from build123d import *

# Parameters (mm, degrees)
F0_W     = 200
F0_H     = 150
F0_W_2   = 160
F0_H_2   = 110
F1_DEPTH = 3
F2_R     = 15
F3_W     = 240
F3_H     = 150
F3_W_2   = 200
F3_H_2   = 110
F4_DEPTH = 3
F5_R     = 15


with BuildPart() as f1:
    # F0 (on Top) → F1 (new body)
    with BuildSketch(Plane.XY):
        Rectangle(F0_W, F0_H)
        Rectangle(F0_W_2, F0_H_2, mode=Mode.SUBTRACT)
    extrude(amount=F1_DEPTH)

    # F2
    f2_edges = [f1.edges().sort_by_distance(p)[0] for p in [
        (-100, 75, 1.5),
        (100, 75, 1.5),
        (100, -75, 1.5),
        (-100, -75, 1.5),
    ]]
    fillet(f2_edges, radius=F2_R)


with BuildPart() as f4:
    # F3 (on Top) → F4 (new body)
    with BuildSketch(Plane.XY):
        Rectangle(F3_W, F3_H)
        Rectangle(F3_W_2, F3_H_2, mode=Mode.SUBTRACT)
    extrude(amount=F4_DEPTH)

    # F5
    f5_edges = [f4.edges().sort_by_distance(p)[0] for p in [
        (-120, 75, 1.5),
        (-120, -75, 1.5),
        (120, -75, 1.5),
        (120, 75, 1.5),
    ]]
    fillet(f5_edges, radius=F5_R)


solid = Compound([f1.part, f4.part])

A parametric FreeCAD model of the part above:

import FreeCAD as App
import Part
import Sketcher
Q = App.Units.Quantity


def edges_at(feature, points):
    """Names of the edges that pass closest to the given points."""
    edges = feature.Shape.Edges
    near = lambda p: min(range(len(edges)), key=lambda i: edges[i].distToShape(Part.Vertex(*p))[0])
    return sorted({f"Edge{near(p) + 1}" for p in points})


def add_polygon(sketch, points):
    """Adds a closed chain of lines whose ends are joined by coincident constraints."""
    first, n = sketch.GeometryCount, len(points)
    for a, b in zip(points, points[1:] + points[:1]):
        sketch.addGeometry(Part.LineSegment(App.Vector(*a, 0), App.Vector(*b, 0)), False)
    for i in range(n):
        sketch.addConstraint(Sketcher.Constraint("Coincident", first + i, 2, first + (i + 1) % n, 1))

doc = App.newDocument("Part")
body = doc.addObject("PartDesign::Body", "Body")

# Sketch on XY plane
sketch1 = doc.addObject("Sketcher::SketchObject", "Sketch")
body.addObject(sketch1)
sketch1.AttachmentSupport = (doc.XY_Plane, [""])
sketch1.MapMode = "FlatFace"
add_polygon(sketch1, [(-100, 75), (-100, -75), (100, -75), (100, 75)])  # lines 0-3
add_polygon(sketch1, [(80, -55), (-80, -55), (-80, 55), (80, 55)])  # lines 4-7
sketch1.addConstraint(Sketcher.Constraint("Vertical", 0))
sketch1.addConstraint(Sketcher.Constraint("Horizontal", 1))
sketch1.addConstraint(Sketcher.Constraint("Vertical", 2))
sketch1.addConstraint(Sketcher.Constraint("Horizontal", 3))
sketch1.addConstraint(Sketcher.Constraint("Horizontal", 4))
sketch1.addConstraint(Sketcher.Constraint("Vertical", 5))
sketch1.addConstraint(Sketcher.Constraint("Horizontal", 6))
sketch1.addConstraint(Sketcher.Constraint("Vertical", 7))
sketch1.addConstraint(Sketcher.Constraint("Symmetric", 0, 2, 2, 2, -1, 1))
sketch1.addConstraint(Sketcher.Constraint("Symmetric", 4, 2, 6, 2, -1, 1))
sketch1.addConstraint(Sketcher.Constraint("DistanceX", 1, 1, 1, 2, Q("200 mm")))
sketch1.addConstraint(Sketcher.Constraint("DistanceX", 4, 2, 4, 1, Q("160 mm")))
sketch1.addConstraint(Sketcher.Constraint("DistanceY", 0, 2, 0, 1, Q("150 mm")))
sketch1.addConstraint(Sketcher.Constraint("DistanceY", 5, 1, 5, 2, Q("110 mm")))
pad1 = doc.addObject("PartDesign::Pad", "Pad")
body.addObject(pad1)
pad1.Profile = sketch1
pad1.Length = 3
doc.recompute()

fillet = doc.addObject("PartDesign::Fillet", "Fillet")
body.addObject(fillet)
fillet.Base = (pad1, edges_at(pad1, [
    (-100, 75, 1.5),
    (100, 75, 1.5),
    (100, -75, 1.5),
    (-100, -75, 1.5),
]))
fillet.Radius = 15
body2 = doc.addObject("PartDesign::Body", "Body001")

# Sketch on XY plane
sketch2 = doc.addObject("Sketcher::SketchObject", "Sketch001")
body2.addObject(sketch2)
sketch2.AttachmentSupport = (doc.getObject("XY_Plane001"), [""])
sketch2.MapMode = "FlatFace"
add_polygon(sketch2, [(-120, 75), (-120, -75), (120, -75), (120, 75)])  # lines 0-3
add_polygon(sketch2, [(100, -55), (-100, -55), (-100, 55), (100, 55)])  # lines 4-7
sketch2.addConstraint(Sketcher.Constraint("Vertical", 0))
sketch2.addConstraint(Sketcher.Constraint("Horizontal", 1))
sketch2.addConstraint(Sketcher.Constraint("Vertical", 2))
sketch2.addConstraint(Sketcher.Constraint("Horizontal", 3))
sketch2.addConstraint(Sketcher.Constraint("Horizontal", 4))
sketch2.addConstraint(Sketcher.Constraint("Vertical", 5))
sketch2.addConstraint(Sketcher.Constraint("Horizontal", 6))
sketch2.addConstraint(Sketcher.Constraint("Vertical", 7))
sketch2.addConstraint(Sketcher.Constraint("Symmetric", 0, 2, 2, 2, -1, 1))
sketch2.addConstraint(Sketcher.Constraint("Symmetric", 4, 2, 6, 2, -1, 1))
sketch2.addConstraint(Sketcher.Constraint("DistanceX", 1, 1, 1, 2, Q("240 mm")))
sketch2.addConstraint(Sketcher.Constraint("DistanceX", 4, 2, 4, 1, Q("200 mm")))
sketch2.addConstraint(Sketcher.Constraint("DistanceY", 0, 2, 0, 1, Q("150 mm")))
sketch2.addConstraint(Sketcher.Constraint("DistanceY", 5, 1, 5, 2, Q("110 mm")))
pad2 = doc.addObject("PartDesign::Pad", "Pad001")
body2.addObject(pad2)
pad2.Profile = sketch2
pad2.Length = 3
doc.recompute()

fillet2 = doc.addObject("PartDesign::Fillet", "Fillet001")
body2.addObject(fillet2)
fillet2.Base = (pad2, edges_at(pad2, [
    (-120, 75, 1.5),
    (-120, -75, 1.5),
    (120, -75, 1.5),
    (120, 75, 1.5),
]))
fillet2.Radius = 15

doc.recompute()
